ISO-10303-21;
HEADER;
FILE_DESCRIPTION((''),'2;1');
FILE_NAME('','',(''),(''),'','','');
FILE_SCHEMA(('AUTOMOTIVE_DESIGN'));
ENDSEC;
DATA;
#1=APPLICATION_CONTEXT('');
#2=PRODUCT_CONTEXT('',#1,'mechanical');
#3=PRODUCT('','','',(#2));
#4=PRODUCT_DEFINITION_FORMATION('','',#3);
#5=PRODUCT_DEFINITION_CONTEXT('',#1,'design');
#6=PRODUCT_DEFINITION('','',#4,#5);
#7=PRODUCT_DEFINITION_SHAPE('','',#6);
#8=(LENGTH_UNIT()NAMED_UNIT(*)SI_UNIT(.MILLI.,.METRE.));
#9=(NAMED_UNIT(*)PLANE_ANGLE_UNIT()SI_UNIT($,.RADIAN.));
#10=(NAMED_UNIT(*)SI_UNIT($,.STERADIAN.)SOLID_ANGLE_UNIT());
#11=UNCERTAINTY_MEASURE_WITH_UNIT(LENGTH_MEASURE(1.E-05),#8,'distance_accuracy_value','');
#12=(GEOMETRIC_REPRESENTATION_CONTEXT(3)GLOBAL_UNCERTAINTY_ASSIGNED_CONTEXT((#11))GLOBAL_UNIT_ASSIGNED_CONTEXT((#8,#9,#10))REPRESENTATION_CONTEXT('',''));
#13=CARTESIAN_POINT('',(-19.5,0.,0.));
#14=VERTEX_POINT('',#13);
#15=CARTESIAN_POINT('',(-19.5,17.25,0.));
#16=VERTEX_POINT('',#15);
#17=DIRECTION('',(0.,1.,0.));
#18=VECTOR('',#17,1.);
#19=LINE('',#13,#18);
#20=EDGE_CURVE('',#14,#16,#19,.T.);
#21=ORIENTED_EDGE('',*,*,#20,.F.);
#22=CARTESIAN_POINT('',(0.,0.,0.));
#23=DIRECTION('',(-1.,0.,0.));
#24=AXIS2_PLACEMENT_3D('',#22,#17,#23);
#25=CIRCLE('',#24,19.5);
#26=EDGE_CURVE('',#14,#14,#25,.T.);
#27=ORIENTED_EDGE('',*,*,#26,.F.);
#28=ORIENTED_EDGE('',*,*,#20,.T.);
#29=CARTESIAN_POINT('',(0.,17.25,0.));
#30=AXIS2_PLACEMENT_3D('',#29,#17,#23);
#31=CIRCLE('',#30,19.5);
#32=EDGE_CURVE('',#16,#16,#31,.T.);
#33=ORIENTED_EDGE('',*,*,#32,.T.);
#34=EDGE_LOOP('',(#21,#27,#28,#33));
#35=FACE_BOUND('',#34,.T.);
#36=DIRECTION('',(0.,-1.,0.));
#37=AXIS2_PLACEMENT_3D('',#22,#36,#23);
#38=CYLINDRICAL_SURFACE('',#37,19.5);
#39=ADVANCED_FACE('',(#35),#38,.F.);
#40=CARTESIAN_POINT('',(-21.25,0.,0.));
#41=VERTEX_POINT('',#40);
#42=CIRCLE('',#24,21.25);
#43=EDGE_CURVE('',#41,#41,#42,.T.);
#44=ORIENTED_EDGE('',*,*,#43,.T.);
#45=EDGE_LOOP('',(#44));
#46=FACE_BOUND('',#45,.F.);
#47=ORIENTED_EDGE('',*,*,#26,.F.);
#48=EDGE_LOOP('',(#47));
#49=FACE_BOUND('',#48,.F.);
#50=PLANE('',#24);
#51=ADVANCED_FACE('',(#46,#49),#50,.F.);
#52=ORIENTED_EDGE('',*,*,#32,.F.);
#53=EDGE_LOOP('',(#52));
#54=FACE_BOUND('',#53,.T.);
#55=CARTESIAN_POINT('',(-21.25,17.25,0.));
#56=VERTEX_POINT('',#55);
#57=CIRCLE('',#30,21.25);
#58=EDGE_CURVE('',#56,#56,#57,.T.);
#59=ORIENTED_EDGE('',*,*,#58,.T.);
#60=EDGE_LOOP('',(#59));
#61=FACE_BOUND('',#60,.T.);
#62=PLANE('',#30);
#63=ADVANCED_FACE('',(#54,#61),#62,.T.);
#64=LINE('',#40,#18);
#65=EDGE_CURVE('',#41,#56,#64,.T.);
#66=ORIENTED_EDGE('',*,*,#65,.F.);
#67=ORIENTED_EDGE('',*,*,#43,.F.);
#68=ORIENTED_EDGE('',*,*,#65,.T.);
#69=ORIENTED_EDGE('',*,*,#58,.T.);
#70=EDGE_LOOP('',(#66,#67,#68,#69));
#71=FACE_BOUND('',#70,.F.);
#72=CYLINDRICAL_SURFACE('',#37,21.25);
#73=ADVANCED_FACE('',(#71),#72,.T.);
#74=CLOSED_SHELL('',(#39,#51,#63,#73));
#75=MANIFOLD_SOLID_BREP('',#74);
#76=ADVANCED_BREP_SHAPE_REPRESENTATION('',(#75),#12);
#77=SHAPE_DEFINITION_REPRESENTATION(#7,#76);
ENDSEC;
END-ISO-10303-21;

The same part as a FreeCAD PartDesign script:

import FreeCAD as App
import Part
import Sketcher
from FreeCAD import Vector
Q = App.Units.Quantity

doc = App.newDocument("Part")
body = doc.addObject("PartDesign::Body", "Body")

# Sketch on XZ plane
sketch1 = body.newObject("Sketcher::SketchObject", "Sketch")
sketch1.AttachmentSupport = (doc.getObject("XZ_Plane"), [""])
sketch1.MapMode = "FlatFace"
sketch1.addGeometry(Part.Circle(Vector(0, 0, 0), Vector(0, 0, 1), 21), False)
sketch1.addGeometry(Part.Circle(Vector(0, 0, 0), Vector(0, 0, 1), 20), False)
sketch1.addConstraint(Sketcher.Constraint("Coincident", 0, 3, -1, 1))
sketch1.addConstraint(Sketcher.Constraint("Coincident", 1, 3, -1, 1))
sketch1.addConstraint(Sketcher.Constraint("Diameter", 0, Q("42.5 mm")))
sketch1.addConstraint(Sketcher.Constraint("Diameter", 1, Q("39 mm")))
pad1 = body.newObject("PartDesign::Pad", "Pad")
pad1.Profile = sketch1
pad1.Length = 17.25
pad1.Reversed = True

doc.recompute()
